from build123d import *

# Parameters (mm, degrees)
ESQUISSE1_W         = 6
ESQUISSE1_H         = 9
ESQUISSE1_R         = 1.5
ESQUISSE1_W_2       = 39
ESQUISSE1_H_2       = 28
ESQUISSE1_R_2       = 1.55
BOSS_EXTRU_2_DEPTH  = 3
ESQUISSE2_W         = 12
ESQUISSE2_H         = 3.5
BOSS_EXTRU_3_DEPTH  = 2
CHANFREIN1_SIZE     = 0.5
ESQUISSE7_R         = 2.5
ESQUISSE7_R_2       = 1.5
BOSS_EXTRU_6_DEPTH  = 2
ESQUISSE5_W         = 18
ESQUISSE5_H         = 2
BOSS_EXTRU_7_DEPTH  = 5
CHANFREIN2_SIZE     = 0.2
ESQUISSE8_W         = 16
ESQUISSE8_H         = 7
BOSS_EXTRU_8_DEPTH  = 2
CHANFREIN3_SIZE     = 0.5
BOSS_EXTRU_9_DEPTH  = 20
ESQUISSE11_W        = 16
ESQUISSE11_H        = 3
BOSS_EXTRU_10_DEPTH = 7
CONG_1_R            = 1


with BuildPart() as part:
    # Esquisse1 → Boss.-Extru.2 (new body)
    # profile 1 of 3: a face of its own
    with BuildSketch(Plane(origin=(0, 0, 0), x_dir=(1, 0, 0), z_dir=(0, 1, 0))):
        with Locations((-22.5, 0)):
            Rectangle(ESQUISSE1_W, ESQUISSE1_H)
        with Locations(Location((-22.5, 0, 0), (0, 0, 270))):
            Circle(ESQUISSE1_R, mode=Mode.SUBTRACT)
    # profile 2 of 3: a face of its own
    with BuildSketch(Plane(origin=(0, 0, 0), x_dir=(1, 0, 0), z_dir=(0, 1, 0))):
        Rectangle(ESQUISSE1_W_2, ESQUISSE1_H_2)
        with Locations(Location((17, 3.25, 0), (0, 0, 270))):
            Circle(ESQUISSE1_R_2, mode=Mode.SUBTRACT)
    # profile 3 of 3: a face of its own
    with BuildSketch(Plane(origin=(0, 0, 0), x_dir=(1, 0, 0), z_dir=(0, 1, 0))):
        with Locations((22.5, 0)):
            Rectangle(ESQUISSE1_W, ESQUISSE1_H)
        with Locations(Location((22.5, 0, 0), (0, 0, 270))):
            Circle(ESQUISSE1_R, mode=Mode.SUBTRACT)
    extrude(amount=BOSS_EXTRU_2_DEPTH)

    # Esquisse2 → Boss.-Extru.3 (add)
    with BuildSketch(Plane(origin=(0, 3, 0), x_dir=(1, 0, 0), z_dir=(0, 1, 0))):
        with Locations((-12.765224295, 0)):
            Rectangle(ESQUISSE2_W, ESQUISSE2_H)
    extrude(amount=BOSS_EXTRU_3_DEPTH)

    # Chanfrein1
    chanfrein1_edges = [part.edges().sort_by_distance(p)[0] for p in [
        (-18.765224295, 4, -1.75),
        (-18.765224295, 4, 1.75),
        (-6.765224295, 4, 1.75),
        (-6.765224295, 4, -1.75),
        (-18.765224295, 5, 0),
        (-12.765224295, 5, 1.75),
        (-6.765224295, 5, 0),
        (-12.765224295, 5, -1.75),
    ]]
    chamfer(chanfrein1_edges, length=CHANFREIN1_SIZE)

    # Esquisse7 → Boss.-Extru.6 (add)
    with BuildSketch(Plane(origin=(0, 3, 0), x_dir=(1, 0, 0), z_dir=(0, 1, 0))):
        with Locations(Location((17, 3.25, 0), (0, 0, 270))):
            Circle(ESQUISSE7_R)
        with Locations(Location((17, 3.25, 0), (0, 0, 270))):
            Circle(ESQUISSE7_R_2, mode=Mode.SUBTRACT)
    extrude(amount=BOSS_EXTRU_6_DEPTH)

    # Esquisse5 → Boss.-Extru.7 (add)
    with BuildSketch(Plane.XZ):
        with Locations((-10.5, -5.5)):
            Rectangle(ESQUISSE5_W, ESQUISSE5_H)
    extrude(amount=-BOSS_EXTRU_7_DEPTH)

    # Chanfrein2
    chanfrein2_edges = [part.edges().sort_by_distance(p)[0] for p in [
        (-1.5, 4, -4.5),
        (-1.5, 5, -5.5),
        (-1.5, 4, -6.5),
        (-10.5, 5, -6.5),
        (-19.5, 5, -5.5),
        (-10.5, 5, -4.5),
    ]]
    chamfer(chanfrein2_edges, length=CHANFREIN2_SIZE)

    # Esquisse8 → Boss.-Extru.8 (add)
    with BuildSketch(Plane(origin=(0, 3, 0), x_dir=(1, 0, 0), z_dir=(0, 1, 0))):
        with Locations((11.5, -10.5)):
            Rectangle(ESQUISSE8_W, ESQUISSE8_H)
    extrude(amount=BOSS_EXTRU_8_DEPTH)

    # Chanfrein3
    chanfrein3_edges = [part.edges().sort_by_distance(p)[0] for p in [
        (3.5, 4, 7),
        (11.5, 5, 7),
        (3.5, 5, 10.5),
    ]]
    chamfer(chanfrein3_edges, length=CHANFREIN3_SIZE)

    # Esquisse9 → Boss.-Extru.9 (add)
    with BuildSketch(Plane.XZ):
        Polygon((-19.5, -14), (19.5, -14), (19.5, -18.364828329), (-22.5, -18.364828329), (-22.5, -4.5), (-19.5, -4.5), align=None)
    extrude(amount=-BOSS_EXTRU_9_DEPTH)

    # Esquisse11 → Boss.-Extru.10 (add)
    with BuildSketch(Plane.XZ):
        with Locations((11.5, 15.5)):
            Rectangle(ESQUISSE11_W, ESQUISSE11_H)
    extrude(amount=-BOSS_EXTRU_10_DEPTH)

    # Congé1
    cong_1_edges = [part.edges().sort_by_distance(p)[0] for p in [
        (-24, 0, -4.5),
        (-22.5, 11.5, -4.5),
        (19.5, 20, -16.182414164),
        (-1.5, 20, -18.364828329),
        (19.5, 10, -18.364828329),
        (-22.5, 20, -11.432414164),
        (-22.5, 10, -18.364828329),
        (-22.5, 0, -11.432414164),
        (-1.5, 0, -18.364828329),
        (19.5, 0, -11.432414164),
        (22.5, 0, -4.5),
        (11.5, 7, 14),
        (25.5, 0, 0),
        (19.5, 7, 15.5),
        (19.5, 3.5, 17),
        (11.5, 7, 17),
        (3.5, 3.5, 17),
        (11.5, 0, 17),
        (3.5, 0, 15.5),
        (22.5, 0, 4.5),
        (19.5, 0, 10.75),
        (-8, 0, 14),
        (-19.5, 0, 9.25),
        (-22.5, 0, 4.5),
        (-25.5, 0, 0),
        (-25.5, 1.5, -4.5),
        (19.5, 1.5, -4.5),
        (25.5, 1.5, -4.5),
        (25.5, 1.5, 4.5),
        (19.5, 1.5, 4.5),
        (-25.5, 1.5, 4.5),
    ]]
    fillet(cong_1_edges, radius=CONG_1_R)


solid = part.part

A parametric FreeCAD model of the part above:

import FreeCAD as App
import Part
import Sketcher

V = App.Vector
Q = App.Units.Quantity


def edges_at(feature, points):
    """Names of the edges that pass closest to the given points."""
    edges = feature.Shape.Edges
    near = lambda p: min(range(len(edges)), key=lambda i: edges[i].distToShape(Part.Vertex(*p))[0])
    return sorted({f"Edge{near(p) + 1}" for p in points})

doc = App.newDocument("Part")
params = doc.addObject("Spreadsheet::Sheet", "Params")
for row, (alias, value) in enumerate([
    ("sketch1_diameter", "3 mm"),
    ("sketch1_diameter2", "3.1 mm"),
    ("sketch1_width", "6 mm"),
    ("sketch1_width2", "39 mm"),
    ("sketch1_height", "9 mm"),
    ("pad1_length", "3 mm"),
    ("sketch2_width", "12 mm"),
    ("sketch2_height", "3.5 mm"),
    ("pad2_length", "2 mm"),
    ("chamfer_size", "0.5 mm"),
    ("sketch3_diameter", "5 mm"),
    ("sketch3_diameter2", "3 mm"),
    ("pad3_length", "2 mm"),
    ("sketch4_width", "18 mm"),
    ("sketch4_height", "2 mm"),
    ("pad4_length", "5 mm"),
    ("chamfer2_size", "0.2 mm"),
    ("sketch5_width", "16 mm"),
    ("sketch5_height", "7 mm"),
    ("pad5_length", "2 mm"),
    ("chamfer3_size", "0.5 mm"),
    ("sketch6_width", "39 mm"),
    ("sketch6_width2", "3 mm"),
    ("sketch6_height", "9.5 mm"),
    ("pad6_length", "20 mm"),
    ("sketch7_width", "16 mm"),
    ("sketch7_height", "3 mm"),
    ("pad7_length", "7 mm"),
    ("fillet_radius", "1 mm"),
], start=1):
    params.set(f"A{row}", alias)
    params.set(f"B{row}", "=" + value)
    params.setAlias(f"B{row}", alias)

body = doc.addObject("PartDesign::Body", "Body")

sketch1 = doc.addObject("Sketcher::SketchObject", "Sketch")
body.addObject(sketch1)
sketch1.AttachmentSupport = (doc.XZ_Plane, [""])
sketch1.MapMode = "FlatFace"
sketch1.addGeometry(Part.LineSegment(V(-25.5, -4.5, 0), V(-25.5, 4.5, 0)), False)
sketch1.addGeometry(Part.LineSegment(V(-25.5, 4.5, 0), V(-19.5, 4.5, 0)), False)
sketch1.addGeometry(Part.LineSegment(V(-19.5, 4.5, 0), V(-19.5, 14, 0)), False)
sketch1.addGeometry(Part.LineSegment(V(-19.5, 14, 0), V(19.5, 14, 0)), False)
sketch1.addGeometry(Part.LineSegment(V(19.5, 14, 0), V(19.5, 4.5, 0)), False)
sketch1.addGeometry(Part.LineSegment(V(19.5, 4.5, 0), V(25.5, 4.5, 0)), False)
sketch1.addGeometry(Part.LineSegment(V(25.5, 4.5, 0), V(25.5, -4.5, 0)), False)
sketch1.addGeometry(Part.LineSegment(V(25.5, -4.5, 0), V(19.5, -4.5, 0)), False)
sketch1.addGeometry(Part.LineSegment(V(19.5, -4.5, 0), V(19.5, -14, 0)), False)
sketch1.addGeometry(Part.LineSegment(V(19.5, -14, 0), V(-19.5, -14, 0)), False)
sketch1.addGeometry(Part.LineSegment(V(-19.5, -14, 0), V(-19.5, -4.5, 0)), False)
sketch1.addGeometry(Part.LineSegment(V(-19.5, -4.5, 0), V(-25.5, -4.5, 0)), False)
sketch1.addGeometry(Part.Circle(V(-22.5, 0, 0), V(0, 0, 1), 1.5), False)
sketch1.addGeometry(Part.Circle(V(17, -3.25, 0), V(0, 0, 1), 1.55), False)
sketch1.addGeometry(Part.Circle(V(22.5, 0, 0), V(0, 0, 1), 1.5), False)
sketch1.addConstraint(Sketcher.Constraint("Coincident", 0, 2, 1, 1))
sketch1.addConstraint(Sketcher.Constraint("Coincident", 1, 2, 2, 1))
sketch1.addConstraint(Sketcher.Constraint("Coincident", 2, 2, 3, 1))
sketch1.addConstraint(Sketcher.Constraint("Coincident", 3, 2, 4, 1))
sketch1.addConstraint(Sketcher.Constraint("Coincident", 4, 2, 5, 1))
sketch1.addConstraint(Sketcher.Constraint("Coincident", 5, 2, 6, 1))
sketch1.addConstraint(Sketcher.Constraint("Coincident", 6, 2, 7, 1))
sketch1.addConstraint(Sketcher.Constraint("Coincident", 7, 2, 8, 1))
sketch1.addConstraint(Sketcher.Constraint("Coincident", 8, 2, 9, 1))
sketch1.addConstraint(Sketcher.Constraint("Coincident", 9, 2, 10, 1))
sketch1.addConstraint(Sketcher.Constraint("Coincident", 10, 2, 11, 1))
sketch1.addConstraint(Sketcher.Constraint("Coincident", 11, 2, 0, 1))
sketch1.addConstraint(Sketcher.Constraint("Vertical", 0))
sketch1.addConstraint(Sketcher.Constraint("Horizontal", 1))
sketch1.addConstraint(Sketcher.Constraint("Vertical", 2))
sketch1.addConstraint(Sketcher.Constraint("Horizontal", 3))
sketch1.addConstraint(Sketcher.Constraint("Vertical", 4))
sketch1.addConstraint(Sketcher.Constraint("Horizontal", 5))
sketch1.addConstraint(Sketcher.Constraint("Vertical", 6))
sketch1.addConstraint(Sketcher.Constraint("Horizontal", 7))
sketch1.addConstraint(Sketcher.Constraint("Vertical", 8))
sketch1.addConstraint(Sketcher.Constraint("Horizontal", 9))
sketch1.addConstraint(Sketcher.Constraint("Vertical", 10))
sketch1.addConstraint(Sketcher.Constraint("Horizontal", 11))
sketch1.addConstraint(Sketcher.Constraint("Equal", 12, 14))
sketch1.addConstraint(Sketcher.Constraint("Symmetric", 12, 3, 14, 3, -1, 1))
sketch1.addConstraint(Sketcher.Constraint("Symmetric", 0, 2, 6, 2, -1, 1))
sketch1.addConstraint(Sketcher.Constraint("Symmetric", 2, 2, 8, 2, -1, 1))
sketch1.addConstraint(Sketcher.Constraint("Symmetric", 4, 2, 10, 2, -1, 1))
sketch1.addConstraint(Sketcher.Constraint("Symmetric", 1, 2, 4, 2, -2))
sketch1.addConstraint(Sketcher.Constraint("PointOnObject", 12, 3, -1))
sketch1.addConstraint(Sketcher.Constraint("Diameter", 12, Q("3 mm")))
sketch1.addConstraint(Sketcher.Constraint("Diameter", 13, Q("3.1 mm")))
sketch1.addConstraint(Sketcher.Constraint("DistanceX", 1, 1, 1, 2, Q("6 mm")))
sketch1.addConstraint(Sketcher.Constraint("DistanceX", 3, 1, 3, 2, Q("39 mm")))
sketch1.addConstraint(Sketcher.Constraint("DistanceY", 0, 1, 0, 2, Q("9 mm")))
sketch1.addConstraint(Sketcher.Constraint("DistanceY", 2, 1, 2, 2, Q("9.5 mm")))
sketch1.addConstraint(Sketcher.Constraint("DistanceX", -1, 1, 13, 3, Q("17 mm")))
sketch1.addConstraint(Sketcher.Constraint("DistanceX", 12, 3, 14, 3, Q("45 mm")))
sketch1.addConstraint(Sketcher.Constraint("DistanceY", 13, 3, -1, 1, Q("3.25 mm")))
sketch1.setExpression("Constraints[31]", "Params.sketch1_diameter")
sketch1.setExpression("Constraints[32]", "Params.sketch1_diameter2")
sketch1.setExpression("Constraints[33]", "Params.sketch1_width")
sketch1.setExpression("Constraints[34]", "Params.sketch1_width2")
sketch1.setExpression("Constraints[35]", "Params.sketch1_height")
pad1 = doc.addObject("PartDesign::Pad", "Pad")
body.addObject(pad1)
pad1.Profile = sketch1
pad1.setExpression("Length", "Params.pad1_length")
pad1.Reversed = True

sketch2 = doc.addObject("Sketcher::SketchObject", "Sketch001")
body.addObject(sketch2)
sketch2.AttachmentSupport = (doc.XZ_Plane, [""])
sketch2.MapMode = "FlatFace"
sketch2.AttachmentOffset = App.Placement(V(0, 0, -3), App.Rotation())
sketch2.addGeometry(Part.LineSegment(V(-18.765224, -1.75, 0), V(-18.765224, 1.75, 0)), False)
sketch2.addGeometry(Part.LineSegment(V(-18.765224, 1.75, 0), V(-6.765224, 1.75, 0)), False)
sketch2.addGeometry(Part.LineSegment(V(-6.765224, 1.75, 0), V(-6.765224, -1.75, 0)), False)
sketch2.addGeometry(Part.LineSegment(V(-6.765224, -1.75, 0), V(-18.765224, -1.75, 0)), False)
sketch2.addConstraint(Sketcher.Constraint("Coincident", 0, 2, 1, 1))
sketch2.addConstraint(Sketcher.Constraint("Coincident", 1, 2, 2, 1))
sketch2.addConstraint(Sketcher.Constraint("Coincident", 2, 2, 3, 1))
sketch2.addConstraint(Sketcher.Constraint("Coincident", 3, 2, 0, 1))
sketch2.addConstraint(Sketcher.Constraint("Vertical", 0))
sketch2.addConstraint(Sketcher.Constraint("Horizontal", 1))
sketch2.addConstraint(Sketcher.Constraint("Vertical", 2))
sketch2.addConstraint(Sketcher.Constraint("Horizontal", 3))
sketch2.addConstraint(Sketcher.Constraint("DistanceX", 1, 1, 1, 2, Q("12 mm")))
sketch2.addConstraint(Sketcher.Constraint("DistanceY", 0, 1, 0, 2, Q("3.5 mm")))
sketch2.addConstraint(Sketcher.Constraint("DistanceY", -1, 1, 0, 2, Q("1.75 mm")))
sketch2.addConstraint(Sketcher.Constraint("DistanceX", 0, 2, -1, 1, Q("18.765224 mm")))
sketch2.setExpression("Constraints[8]", "Params.sketch2_width")
sketch2.setExpression("Constraints[9]", "Params.sketch2_height")
pad2 = doc.addObject("PartDesign::Pad", "Pad001")
body.addObject(pad2)
pad2.Profile = sketch2
pad2.setExpression("Length", "Params.pad2_length")
pad2.Reversed = True
doc.recompute()

chamfer = doc.addObject("PartDesign::Chamfer", "Chamfer")
body.addObject(chamfer)
chamfer.Base = (pad2, edges_at(pad2, [
    (-18.765, 4, -1.75),
    (-18.765, 4, 1.75),
    (-6.765, 4, 1.75),
    (-6.765, 4, -1.75),
    (-18.765, 5, 0),
    (-12.765, 5, 1.75),
    (-6.765, 5, 0),
    (-12.765, 5, -1.75),
]))
chamfer.setExpression("Size", "Params.chamfer_size")

sketch3 = doc.addObject("Sketcher::SketchObject", "Sketch002")
body.addObject(sketch3)
sketch3.AttachmentSupport = (doc.XZ_Plane, [""])
sketch3.MapMode = "FlatFace"
sketch3.AttachmentOffset = App.Placement(V(0, 0, -3), App.Rotation())
sketch3.addGeometry(Part.Circle(V(17, -3.25, 0), V(0, 0, 1), 2.5), False)
sketch3.addGeometry(Part.Circle(V(17, -3.25, 0), V(0, 0, 1), 1.5), False)
sketch3.addConstraint(Sketcher.Constraint("Coincident", 1, 3, 0, 3))
sketch3.addConstraint(Sketcher.Constraint("Diameter", 0, Q("5 mm")))
sketch3.addConstraint(Sketcher.Constraint("Diameter", 1, Q("3 mm")))
sketch3.addConstraint(Sketcher.Constraint("DistanceX", -1, 1, 0, 3, Q("17 mm")))
sketch3.addConstraint(Sketcher.Constraint("DistanceY", 0, 3, -1, 1, Q("3.25 mm")))
sketch3.setExpression("Constraints[1]", "Params.sketch3_diameter")
sketch3.setExpression("Constraints[2]", "Params.sketch3_diameter2")
pad3 = doc.addObject("PartDesign::Pad", "Pad002")
body.addObject(pad3)
pad3.Profile = sketch3
pad3.setExpression("Length", "Params.pad3_length")
pad3.Reversed = True

sketch4 = doc.addObject("Sketcher::SketchObject", "Sketch003")
body.addObject(sketch4)
sketch4.AttachmentSupport = (doc.XZ_Plane, [""])
sketch4.MapMode = "FlatFace"
sketch4.addGeometry(Part.LineSegment(V(-19.5, -4.5, 0), V(-19.5, -6.5, 0)), False)
sketch4.addGeometry(Part.LineSegment(V(-19.5, -6.5, 0), V(-1.5, -6.5, 0)), False)
sketch4.addGeometry(Part.LineSegment(V(-1.5, -6.5, 0), V(-1.5, -4.5, 0)), False)
sketch4.addGeometry(Part.LineSegment(V(-1.5, -4.5, 0), V(-19.5, -4.5, 0)), False)
sketch4.addConstraint(Sketcher.Constraint("Coincident", 0, 2, 1, 1))
sketch4.addConstraint(Sketcher.Constraint("Coincident", 1, 2, 2, 1))
sketch4.addConstraint(Sketcher.Constraint("Coincident", 2, 2, 3, 1))
sketch4.addConstraint(Sketcher.Constraint("Coincident", 3, 2, 0, 1))
sketch4.addConstraint(Sketcher.Constraint("Vertical", 0))
sketch4.addConstraint(Sketcher.Constraint("Horizontal", 1))
sketch4.addConstraint(Sketcher.Constraint("Vertical", 2))
sketch4.addConstraint(Sketcher.Constraint("Horizontal", 3))
sketch4.addConstraint(Sketcher.Constraint("DistanceX", 1, 1, 1, 2, Q("18 mm")))
sketch4.addConstraint(Sketcher.Constraint("DistanceY", 0, 2, 0, 1, Q("2 mm")))
sketch4.addConstraint(Sketcher.Constraint("DistanceX", 0, 2, -1, 1, Q("19.5 mm")))
sketch4.addConstraint(Sketcher.Constraint("DistanceY", 0, 2, -1, 1, Q("6.5 mm")))
sketch4.setExpression("Constraints[8]", "Params.sketch4_width")
sketch4.setExpression("Constraints[9]", "Params.sketch4_height")
pad4 = doc.addObject("PartDesign::Pad", "Pad003")
body.addObject(pad4)
pad4.Profile = sketch4
pad4.setExpression("Length", "Params.pad4_length")
pad4.Reversed = True
doc.recompute()

chamfer2 = doc.addObject("PartDesign::Chamfer", "Chamfer001")
body.addObject(chamfer2)
chamfer2.Base = (pad4, edges_at(pad4, [
    (-1.5, 4, -4.5),
    (-1.5, 5, -5.5),
    (-1.5, 4, -6.5),
    (-10.5, 5, -6.5),
    (-19.5, 5, -5.5),
    (-10.5, 5, -4.5),
]))
chamfer2.setExpression("Size", "Params.chamfer2_size")

sketch5 = doc.addObject("Sketcher::SketchObject", "Sketch004")
body.addObject(sketch5)
sketch5.AttachmentSupport = (doc.XZ_Plane, [""])
sketch5.MapMode = "FlatFace"
sketch5.AttachmentOffset = App.Placement(V(0, 0, -3), App.Rotation())
sketch5.addGeometry(Part.LineSegment(V(3.5, 7, 0), V(3.5, 14, 0)), False)
sketch5.addGeometry(Part.LineSegment(V(3.5, 14, 0), V(19.5, 14, 0)), False)
sketch5.addGeometry(Part.LineSegment(V(19.5, 14, 0), V(19.5, 7, 0)), False)
sketch5.addGeometry(Part.LineSegment(V(19.5, 7, 0), V(3.5, 7, 0)), False)
sketch5.addConstraint(Sketcher.Constraint("Coincident", 0, 2, 1, 1))
sketch5.addConstraint(Sketcher.Constraint("Coincident", 1, 2, 2, 1))
sketch5.addConstraint(Sketcher.Constraint("Coincident", 2, 2, 3, 1))
sketch5.addConstraint(Sketcher.Constraint("Coincident", 3, 2, 0, 1))
sketch5.addConstraint(Sketcher.Constraint("Vertical", 0))
sketch5.addConstraint(Sketcher.Constraint("Horizontal", 1))
sketch5.addConstraint(Sketcher.Constraint("Vertical", 2))
sketch5.addConstraint(Sketcher.Constraint("Horizontal", 3))
sketch5.addConstraint(Sketcher.Constraint("DistanceX", 1, 1, 1, 2, Q("16 mm")))
sketch5.addConstraint(Sketcher.Constraint("DistanceY", 0, 1, 0, 2, Q("7 mm")))
sketch5.addConstraint(Sketcher.Constraint("DistanceY", -1, 1, 0, 2, Q("14 mm")))
sketch5.addConstraint(Sketcher.Constraint("DistanceX", -1, 1, 0, 2, Q("3.5 mm")))
sketch5.setExpression("Constraints[8]", "Params.sketch5_width")
sketch5.setExpression("Constraints[9]", "Params.sketch5_height")
pad5 = doc.addObject("PartDesign::Pad", "Pad004")
body.addObject(pad5)
pad5.Profile = sketch5
pad5.setExpression("Length", "Params.pad5_length")
pad5.Reversed = True
doc.recompute()

chamfer3 = doc.addObject("PartDesign::Chamfer", "Chamfer002")
body.addObject(chamfer3)
chamfer3.Base = (pad5, edges_at(pad5, [(3.5, 4, 7), (11.5, 5, 7), (3.5, 5, 10.5)]))
chamfer3.setExpression("Size", "Params.chamfer3_size")

sketch6 = doc.addObject("Sketcher::SketchObject", "Sketch005")
body.addObject(sketch6)
sketch6.AttachmentSupport = (doc.XZ_Plane, [""])
sketch6.MapMode = "FlatFace"
sketch6.addGeometry(Part.LineSegment(V(19.5, -14, 0), V(-19.5, -14, 0)), False)
sketch6.addGeometry(Part.LineSegment(V(-19.5, -14, 0), V(-19.5, -4.5, 0)), False)
sketch6.addGeometry(Part.LineSegment(V(-19.5, -4.5, 0), V(-22.5, -4.5, 0)), False)
sketch6.addGeometry(Part.LineSegment(V(-22.5, -4.5, 0), V(-22.5, -18.364828, 0)), False)
sketch6.addGeometry(Part.LineSegment(V(-22.5, -18.364828, 0), V(19.5, -18.364828, 0)), False)
sketch6.addGeometry(Part.LineSegment(V(19.5, -18.364828, 0), V(19.5, -14, 0)), False)
sketch6.addConstraint(Sketcher.Constraint("Coincident", 0, 2, 1, 1))
sketch6.addConstraint(Sketcher.Constraint("Coincident", 1, 2, 2, 1))
sketch6.addConstraint(Sketcher.Constraint("Coincident", 2, 2, 3, 1))
sketch6.addConstraint(Sketcher.Constraint("Coincident", 3, 2, 4, 1))
sketch6.addConstraint(Sketcher.Constraint("Coincident", 4, 2, 5, 1))
sketch6.addConstraint(Sketcher.Constraint("Coincident", 5, 2, 0, 1))
sketch6.addConstraint(Sketcher.Constraint("Horizontal", 0))
sketch6.addConstraint(Sketcher.Constraint("Vertical", 1))
sketch6.addConstraint(Sketcher.Constraint("Horizontal", 2))
sketch6.addConstraint(Sketcher.Constraint("Vertical", 3))
sketch6.addConstraint(Sketcher.Constraint("Horizontal", 4))
sketch6.addConstraint(Sketcher.Constraint("Vertical", 5))
sketch6.addConstraint(Sketcher.Constraint("DistanceX", 0, 2, 0, 1, Q("39 mm")))
sketch6.addConstraint(Sketcher.Constraint("DistanceX", 2, 2, 2, 1, Q("3 mm")))
sketch6.addConstraint(Sketcher.Constraint("DistanceY", 1, 1, 1, 2, Q("9.5 mm")))
sketch6.addConstraint(Sketcher.Constraint("DistanceY", 0, 2, -1, 1, Q("14 mm")))
sketch6.addConstraint(Sketcher.Constraint("DistanceX", 0, 2, -1, 1, Q("19.5 mm")))
sketch6.addConstraint(Sketcher.Constraint("DistanceY", 3, 2, 3, 1, Q("13.864828 mm")))
sketch6.setExpression("Constraints[12]", "Params.sketch6_width")
sketch6.setExpression("Constraints[13]", "Params.sketch6_width2")
sketch6.setExpression("Constraints[14]", "Params.sketch6_height")
pad6 = doc.addObject("PartDesign::Pad", "Pad005")
body.addObject(pad6)
pad6.Profile = sketch6
pad6.setExpression("Length", "Params.pad6_length")
pad6.Reversed = True

sketch7 = doc.addObject("Sketcher::SketchObject", "Sketch006")
body.addObject(sketch7)
sketch7.AttachmentSupport = (doc.XZ_Plane, [""])
sketch7.MapMode = "FlatFace"
sketch7.addGeometry(Part.LineSegment(V(3.5, 17, 0), V(3.5, 14, 0)), False)
sketch7.addGeometry(Part.LineSegment(V(3.5, 14, 0), V(19.5, 14, 0)), False)
sketch7.addGeometry(Part.LineSegment(V(19.5, 14, 0), V(19.5, 17, 0)), False)
sketch7.addGeometry(Part.LineSegment(V(19.5, 17, 0), V(3.5, 17, 0)), False)
sketch7.addConstraint(Sketcher.Constraint("Coincident", 0, 2, 1, 1))
sketch7.addConstraint(Sketcher.Constraint("Coincident", 1, 2, 2, 1))
sketch7.addConstraint(Sketcher.Constraint("Coincident", 2, 2, 3, 1))
sketch7.addConstraint(Sketcher.Constraint("Coincident", 3, 2, 0, 1))
sketch7.addConstraint(Sketcher.Constraint("Vertical", 0))
sketch7.addConstraint(Sketcher.Constraint("Horizontal", 1))
sketch7.addConstraint(Sketcher.Constraint("Vertical", 2))
sketch7.addConstraint(Sketcher.Constraint("Horizontal", 3))
sketch7.addConstraint(Sketcher.Constraint("DistanceX", 1, 1, 1, 2, Q("16 mm")))
sketch7.addConstraint(Sketcher.Constraint("DistanceY", 0, 2, 0, 1, Q("3 mm")))
sketch7.addConstraint(Sketcher.Constraint("DistanceY", -1, 1, 0, 2, Q("14 mm")))
sketch7.addConstraint(Sketcher.Constraint("DistanceX", -1, 1, 0, 2, Q("3.5 mm")))
sketch7.setExpression("Constraints[8]", "Params.sketch7_width")
sketch7.setExpression("Constraints[9]", "Params.sketch7_height")
pad7 = doc.addObject("PartDesign::Pad", "Pad006")
body.addObject(pad7)
pad7.Profile = sketch7
pad7.setExpression("Length", "Params.pad7_length")
pad7.Reversed = True
doc.recompute()

fillet = doc.addObject("PartDesign::Fillet", "Fillet")
body.addObject(fillet)
fillet.Base = (pad7, edges_at(pad7, [
    (-24, 0, -4.5),
    (-22.5, 11.5, -4.5),
    (19.5, 20, -16.182),
    (-1.5, 20, -18.365),
    (19.5, 10, -18.365),
    (-22.5, 20, -11.432),
    (-22.5, 10, -18.365),
    (-22.5, 0, -11.432),
    (-1.5, 0, -18.365),
    (19.5, 0, -11.432),
    (22.5, 0, -4.5),
    (11.5, 7, 14),
    (25.5, 0, 0),
    (19.5, 7, 15.5),
    (19.5, 3.5, 17),
    (11.5, 7, 17),
    (3.5, 3.5, 17),
    (11.5, 0, 17),
    (3.5, 0, 15.5),
    (22.5, 0, 4.5),
    (19.5, 0, 10.75),
    (-8, 0, 14),
    (-19.5, 0, 9.25),
    (-22.5, 0, 4.5),
    (-25.5, 0, 0),
    (-25.5, 1.5, -4.5),
    (19.5, 1.5, -4.5),
    (25.5, 1.5, -4.5),
    (25.5, 1.5, 4.5),
    (19.5, 1.5, 4.5),
    (-25.5, 1.5, 4.5),
]))
fillet.setExpression("Radius", "Params.fillet_radius")

doc.recompute()
